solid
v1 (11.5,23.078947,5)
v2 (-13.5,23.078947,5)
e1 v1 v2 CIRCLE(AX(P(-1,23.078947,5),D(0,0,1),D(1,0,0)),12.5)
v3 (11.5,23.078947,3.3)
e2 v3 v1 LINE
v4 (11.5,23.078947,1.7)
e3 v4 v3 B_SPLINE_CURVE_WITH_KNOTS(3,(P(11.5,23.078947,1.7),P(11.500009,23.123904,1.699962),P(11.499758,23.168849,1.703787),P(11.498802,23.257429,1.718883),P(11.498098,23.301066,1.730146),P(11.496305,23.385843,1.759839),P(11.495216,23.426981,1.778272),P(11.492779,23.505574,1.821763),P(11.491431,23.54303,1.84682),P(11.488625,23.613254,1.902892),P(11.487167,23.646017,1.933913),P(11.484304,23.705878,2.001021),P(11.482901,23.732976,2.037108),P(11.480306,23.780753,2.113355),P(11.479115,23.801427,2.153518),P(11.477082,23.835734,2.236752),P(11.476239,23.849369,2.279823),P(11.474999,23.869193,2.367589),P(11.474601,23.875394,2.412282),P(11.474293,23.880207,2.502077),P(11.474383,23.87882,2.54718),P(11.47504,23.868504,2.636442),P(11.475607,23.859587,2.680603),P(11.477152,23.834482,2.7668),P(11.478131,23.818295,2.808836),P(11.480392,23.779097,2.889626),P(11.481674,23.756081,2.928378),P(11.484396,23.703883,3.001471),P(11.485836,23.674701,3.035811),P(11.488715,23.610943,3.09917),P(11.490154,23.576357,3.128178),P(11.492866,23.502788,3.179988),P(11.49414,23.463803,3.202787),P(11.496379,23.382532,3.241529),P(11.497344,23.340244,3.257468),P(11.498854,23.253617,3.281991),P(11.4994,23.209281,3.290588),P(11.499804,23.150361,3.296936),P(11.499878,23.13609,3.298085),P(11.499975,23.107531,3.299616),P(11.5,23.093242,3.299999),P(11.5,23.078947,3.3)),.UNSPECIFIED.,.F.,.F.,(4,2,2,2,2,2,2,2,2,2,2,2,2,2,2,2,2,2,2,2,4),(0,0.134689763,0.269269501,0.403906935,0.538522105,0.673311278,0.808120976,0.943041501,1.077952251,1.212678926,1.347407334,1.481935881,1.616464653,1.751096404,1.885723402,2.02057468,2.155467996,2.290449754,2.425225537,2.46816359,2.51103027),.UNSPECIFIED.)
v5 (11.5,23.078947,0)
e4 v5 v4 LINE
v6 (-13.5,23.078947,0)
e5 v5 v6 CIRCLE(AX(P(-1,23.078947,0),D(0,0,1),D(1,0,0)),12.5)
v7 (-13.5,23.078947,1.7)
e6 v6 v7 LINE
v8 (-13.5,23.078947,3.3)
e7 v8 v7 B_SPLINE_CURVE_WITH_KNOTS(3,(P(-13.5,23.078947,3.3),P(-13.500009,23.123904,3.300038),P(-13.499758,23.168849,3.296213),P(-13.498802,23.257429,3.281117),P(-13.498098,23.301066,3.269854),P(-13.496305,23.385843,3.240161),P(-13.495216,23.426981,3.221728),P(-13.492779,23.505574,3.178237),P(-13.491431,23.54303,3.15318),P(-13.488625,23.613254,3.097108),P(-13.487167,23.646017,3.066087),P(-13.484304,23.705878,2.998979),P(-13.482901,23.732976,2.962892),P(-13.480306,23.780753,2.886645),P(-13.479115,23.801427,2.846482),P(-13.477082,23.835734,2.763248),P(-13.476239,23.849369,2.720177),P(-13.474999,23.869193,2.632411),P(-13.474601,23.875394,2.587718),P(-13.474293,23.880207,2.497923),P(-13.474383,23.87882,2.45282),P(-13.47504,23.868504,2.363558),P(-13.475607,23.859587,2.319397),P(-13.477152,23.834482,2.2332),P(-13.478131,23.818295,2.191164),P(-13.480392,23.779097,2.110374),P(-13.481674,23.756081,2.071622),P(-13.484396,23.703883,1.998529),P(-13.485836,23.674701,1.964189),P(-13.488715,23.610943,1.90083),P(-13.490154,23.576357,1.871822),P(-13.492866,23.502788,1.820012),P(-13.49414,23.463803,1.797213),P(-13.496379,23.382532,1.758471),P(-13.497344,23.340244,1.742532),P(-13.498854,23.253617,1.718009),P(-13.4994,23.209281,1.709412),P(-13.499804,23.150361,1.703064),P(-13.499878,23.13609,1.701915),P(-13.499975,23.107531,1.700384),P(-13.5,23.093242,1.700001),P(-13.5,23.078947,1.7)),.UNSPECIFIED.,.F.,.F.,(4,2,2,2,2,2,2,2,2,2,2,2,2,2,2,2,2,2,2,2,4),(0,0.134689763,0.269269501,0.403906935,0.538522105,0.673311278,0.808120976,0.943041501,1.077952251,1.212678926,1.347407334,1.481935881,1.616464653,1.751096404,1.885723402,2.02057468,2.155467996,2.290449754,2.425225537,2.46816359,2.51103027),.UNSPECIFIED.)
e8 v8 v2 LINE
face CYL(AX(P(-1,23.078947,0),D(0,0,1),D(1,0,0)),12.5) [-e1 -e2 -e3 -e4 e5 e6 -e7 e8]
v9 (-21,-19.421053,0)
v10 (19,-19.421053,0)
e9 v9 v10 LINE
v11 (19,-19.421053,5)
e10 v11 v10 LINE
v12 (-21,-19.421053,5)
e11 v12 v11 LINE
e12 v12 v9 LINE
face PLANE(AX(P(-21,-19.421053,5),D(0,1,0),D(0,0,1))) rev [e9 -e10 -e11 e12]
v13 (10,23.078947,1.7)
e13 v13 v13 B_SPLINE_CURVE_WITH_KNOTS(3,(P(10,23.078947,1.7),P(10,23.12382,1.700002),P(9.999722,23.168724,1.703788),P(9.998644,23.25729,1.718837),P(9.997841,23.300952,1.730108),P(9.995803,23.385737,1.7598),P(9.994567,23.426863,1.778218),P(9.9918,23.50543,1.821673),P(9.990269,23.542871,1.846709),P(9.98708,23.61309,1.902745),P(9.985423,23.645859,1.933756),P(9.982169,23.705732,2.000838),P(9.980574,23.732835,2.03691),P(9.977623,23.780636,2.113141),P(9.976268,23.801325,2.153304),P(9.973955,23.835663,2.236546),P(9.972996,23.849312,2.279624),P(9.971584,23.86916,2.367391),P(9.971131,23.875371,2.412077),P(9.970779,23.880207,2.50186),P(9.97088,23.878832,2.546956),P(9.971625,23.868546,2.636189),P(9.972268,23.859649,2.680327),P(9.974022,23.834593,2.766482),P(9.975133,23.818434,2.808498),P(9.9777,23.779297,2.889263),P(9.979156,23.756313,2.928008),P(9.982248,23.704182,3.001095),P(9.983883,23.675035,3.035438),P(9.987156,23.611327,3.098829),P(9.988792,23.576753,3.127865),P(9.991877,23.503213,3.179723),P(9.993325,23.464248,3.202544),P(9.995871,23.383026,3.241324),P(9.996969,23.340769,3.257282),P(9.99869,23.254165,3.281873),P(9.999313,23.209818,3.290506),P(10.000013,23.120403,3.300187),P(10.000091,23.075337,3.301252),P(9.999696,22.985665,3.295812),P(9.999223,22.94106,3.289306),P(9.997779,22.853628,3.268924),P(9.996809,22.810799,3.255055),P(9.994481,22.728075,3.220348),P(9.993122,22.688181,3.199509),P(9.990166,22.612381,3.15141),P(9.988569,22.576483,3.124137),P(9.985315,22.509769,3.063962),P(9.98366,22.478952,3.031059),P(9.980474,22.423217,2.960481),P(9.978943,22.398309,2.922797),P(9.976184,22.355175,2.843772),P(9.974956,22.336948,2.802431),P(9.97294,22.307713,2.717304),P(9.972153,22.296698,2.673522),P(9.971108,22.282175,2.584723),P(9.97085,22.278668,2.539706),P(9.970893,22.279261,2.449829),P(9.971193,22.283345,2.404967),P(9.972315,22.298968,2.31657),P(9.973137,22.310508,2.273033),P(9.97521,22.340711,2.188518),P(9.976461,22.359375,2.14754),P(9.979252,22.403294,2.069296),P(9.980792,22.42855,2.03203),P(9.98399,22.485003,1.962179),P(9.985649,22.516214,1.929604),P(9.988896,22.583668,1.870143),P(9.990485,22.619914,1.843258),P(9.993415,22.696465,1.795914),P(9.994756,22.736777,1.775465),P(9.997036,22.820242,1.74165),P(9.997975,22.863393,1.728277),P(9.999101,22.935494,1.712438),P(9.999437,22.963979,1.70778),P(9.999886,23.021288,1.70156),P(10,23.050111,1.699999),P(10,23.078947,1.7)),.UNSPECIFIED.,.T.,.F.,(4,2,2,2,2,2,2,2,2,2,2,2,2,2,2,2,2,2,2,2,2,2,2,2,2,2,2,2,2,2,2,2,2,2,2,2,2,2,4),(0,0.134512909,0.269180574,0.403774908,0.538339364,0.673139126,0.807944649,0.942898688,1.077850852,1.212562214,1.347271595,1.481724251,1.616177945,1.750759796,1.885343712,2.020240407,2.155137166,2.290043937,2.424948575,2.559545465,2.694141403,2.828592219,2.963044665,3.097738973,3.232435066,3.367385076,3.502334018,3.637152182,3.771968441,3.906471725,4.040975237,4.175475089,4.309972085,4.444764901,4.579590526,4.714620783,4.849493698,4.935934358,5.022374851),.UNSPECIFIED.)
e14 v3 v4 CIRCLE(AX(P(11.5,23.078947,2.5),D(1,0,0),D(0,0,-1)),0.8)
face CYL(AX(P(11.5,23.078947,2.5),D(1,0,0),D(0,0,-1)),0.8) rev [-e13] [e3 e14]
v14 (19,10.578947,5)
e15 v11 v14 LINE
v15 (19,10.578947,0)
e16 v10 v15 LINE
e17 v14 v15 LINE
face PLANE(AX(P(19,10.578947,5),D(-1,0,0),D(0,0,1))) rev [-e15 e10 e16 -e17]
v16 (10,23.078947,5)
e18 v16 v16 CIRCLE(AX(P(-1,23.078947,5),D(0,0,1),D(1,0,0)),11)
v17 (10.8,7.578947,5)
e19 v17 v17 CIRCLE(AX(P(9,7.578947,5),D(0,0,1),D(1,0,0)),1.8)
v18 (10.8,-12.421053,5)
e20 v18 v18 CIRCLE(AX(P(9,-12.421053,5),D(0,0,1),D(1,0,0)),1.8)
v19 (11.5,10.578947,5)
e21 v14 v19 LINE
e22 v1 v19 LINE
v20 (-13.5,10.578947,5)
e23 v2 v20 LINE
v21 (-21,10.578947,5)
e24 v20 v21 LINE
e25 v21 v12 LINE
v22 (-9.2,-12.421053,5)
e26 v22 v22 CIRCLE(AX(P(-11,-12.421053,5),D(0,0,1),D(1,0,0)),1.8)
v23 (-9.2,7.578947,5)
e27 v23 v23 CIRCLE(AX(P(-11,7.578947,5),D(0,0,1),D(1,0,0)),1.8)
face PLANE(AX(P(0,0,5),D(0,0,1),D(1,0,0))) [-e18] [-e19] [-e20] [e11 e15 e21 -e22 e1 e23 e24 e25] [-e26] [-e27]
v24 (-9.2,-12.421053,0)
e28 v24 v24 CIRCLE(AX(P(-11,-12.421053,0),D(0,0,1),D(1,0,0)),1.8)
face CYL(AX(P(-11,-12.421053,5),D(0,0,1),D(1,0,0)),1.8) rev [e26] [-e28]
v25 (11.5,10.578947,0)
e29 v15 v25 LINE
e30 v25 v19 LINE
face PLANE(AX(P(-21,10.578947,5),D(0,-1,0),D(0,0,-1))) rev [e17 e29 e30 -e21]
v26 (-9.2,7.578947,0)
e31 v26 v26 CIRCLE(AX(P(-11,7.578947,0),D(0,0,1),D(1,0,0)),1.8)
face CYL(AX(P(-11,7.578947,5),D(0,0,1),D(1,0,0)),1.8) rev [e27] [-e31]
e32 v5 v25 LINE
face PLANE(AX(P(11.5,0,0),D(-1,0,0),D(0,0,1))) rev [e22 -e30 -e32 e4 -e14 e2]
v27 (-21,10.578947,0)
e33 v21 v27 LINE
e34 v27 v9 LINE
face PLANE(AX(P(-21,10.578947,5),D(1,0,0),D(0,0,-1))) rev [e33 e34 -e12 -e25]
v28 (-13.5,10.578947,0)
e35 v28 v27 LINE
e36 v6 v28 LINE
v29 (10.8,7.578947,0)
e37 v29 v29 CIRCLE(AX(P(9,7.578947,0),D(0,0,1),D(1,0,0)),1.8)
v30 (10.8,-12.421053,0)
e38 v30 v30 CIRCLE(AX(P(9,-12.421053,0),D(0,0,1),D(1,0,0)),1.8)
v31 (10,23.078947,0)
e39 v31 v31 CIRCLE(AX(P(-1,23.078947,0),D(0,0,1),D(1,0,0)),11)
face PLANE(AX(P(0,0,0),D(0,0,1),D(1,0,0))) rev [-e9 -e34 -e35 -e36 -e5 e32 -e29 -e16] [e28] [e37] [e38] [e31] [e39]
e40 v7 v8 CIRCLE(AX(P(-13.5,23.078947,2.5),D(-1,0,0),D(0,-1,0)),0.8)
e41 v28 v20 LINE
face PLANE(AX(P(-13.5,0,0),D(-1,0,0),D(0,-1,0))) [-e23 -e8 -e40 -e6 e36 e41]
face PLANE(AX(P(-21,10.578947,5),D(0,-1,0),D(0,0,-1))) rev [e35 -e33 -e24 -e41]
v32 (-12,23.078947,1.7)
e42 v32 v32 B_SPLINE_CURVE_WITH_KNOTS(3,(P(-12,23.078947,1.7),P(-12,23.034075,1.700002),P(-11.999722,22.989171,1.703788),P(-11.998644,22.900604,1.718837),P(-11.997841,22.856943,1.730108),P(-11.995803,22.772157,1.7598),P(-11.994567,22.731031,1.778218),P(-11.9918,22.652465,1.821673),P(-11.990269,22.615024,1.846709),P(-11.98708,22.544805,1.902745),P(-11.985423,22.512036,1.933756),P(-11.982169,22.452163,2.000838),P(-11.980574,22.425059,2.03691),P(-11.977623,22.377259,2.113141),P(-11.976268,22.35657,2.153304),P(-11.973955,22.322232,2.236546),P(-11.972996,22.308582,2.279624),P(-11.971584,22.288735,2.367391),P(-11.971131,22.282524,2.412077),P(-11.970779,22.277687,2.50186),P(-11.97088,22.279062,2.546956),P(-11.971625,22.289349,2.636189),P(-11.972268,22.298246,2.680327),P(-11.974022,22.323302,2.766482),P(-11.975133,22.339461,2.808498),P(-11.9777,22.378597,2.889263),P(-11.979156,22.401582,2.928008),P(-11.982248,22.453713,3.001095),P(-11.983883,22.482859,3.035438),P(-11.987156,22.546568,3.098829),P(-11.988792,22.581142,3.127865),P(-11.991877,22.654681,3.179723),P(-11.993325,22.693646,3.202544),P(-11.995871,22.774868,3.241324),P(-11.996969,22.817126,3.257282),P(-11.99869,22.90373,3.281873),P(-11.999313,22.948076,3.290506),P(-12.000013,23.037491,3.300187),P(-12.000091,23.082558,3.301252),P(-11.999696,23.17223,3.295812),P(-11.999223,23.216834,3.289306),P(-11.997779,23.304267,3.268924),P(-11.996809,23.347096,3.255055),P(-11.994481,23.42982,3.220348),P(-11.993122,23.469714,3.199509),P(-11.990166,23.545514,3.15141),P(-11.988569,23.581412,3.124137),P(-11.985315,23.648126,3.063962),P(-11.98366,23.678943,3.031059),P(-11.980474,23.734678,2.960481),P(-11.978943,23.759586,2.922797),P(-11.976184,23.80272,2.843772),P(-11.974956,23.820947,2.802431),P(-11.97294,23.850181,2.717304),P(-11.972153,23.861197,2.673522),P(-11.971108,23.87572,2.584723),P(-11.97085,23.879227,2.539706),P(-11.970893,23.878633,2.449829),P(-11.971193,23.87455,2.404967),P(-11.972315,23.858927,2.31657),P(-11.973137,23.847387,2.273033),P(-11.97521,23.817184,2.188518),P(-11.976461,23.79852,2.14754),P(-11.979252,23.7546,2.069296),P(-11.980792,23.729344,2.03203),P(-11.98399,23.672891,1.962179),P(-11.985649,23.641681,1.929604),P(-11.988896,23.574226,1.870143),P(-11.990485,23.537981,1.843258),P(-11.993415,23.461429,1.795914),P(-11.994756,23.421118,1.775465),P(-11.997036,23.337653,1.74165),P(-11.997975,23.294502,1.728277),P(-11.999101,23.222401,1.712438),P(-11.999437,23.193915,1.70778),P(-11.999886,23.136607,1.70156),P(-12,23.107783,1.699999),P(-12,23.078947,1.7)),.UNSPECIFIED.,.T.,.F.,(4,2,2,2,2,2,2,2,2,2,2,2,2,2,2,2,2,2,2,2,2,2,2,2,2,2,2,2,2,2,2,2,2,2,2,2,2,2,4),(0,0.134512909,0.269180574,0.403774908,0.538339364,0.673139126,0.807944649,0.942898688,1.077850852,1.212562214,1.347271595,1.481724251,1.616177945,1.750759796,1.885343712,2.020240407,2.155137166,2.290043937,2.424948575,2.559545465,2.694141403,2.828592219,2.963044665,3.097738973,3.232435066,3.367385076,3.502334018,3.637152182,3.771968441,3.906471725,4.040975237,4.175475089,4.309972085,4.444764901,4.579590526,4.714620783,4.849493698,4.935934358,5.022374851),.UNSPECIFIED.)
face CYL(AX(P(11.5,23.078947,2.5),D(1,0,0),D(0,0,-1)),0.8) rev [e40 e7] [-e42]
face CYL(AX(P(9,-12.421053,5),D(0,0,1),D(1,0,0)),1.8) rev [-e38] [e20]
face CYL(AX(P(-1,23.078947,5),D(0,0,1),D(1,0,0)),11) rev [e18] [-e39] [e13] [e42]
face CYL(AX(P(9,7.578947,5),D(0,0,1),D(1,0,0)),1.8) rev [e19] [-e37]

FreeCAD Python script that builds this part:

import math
import FreeCAD as App
import Part
import Sketcher

V = App.Vector


def add_polygon(sketch, points):
    """Adds a closed chain of lines whose ends are joined by coincident constraints."""
    first, n = sketch.GeometryCount, len(points)
    for a, b in zip(points, points[1:] + points[:1]):
        sketch.addGeometry(Part.LineSegment(App.Vector(*a, 0), App.Vector(*b, 0)), False)
    for i in range(n):
        sketch.addConstraint(Sketcher.Constraint("Coincident", first + i, 2, first + (i + 1) % n, 1))

doc = App.newDocument("Part")
params = doc.addObject("Spreadsheet::Sheet", "Params")
for row, (alias, value) in enumerate([
    ("sketch1_width", "40 mm"),
    ("sketch1_height", "30 mm"),
    ("pad1_length", "5 mm"),
    ("sketch2_radius", "12.5 mm"),
    ("sketch2_height", "12.5 mm"),
    ("pad2_length", "5 mm"),
    ("sketch3_diameter", "22 mm"),
    ("hole_diameter", "22 mm"),
    ("sketch4_diameter", "3.6 mm"),
    ("hole2_diameter", "3.6 mm"),
    ("sketch5_diameter", "1.6 mm"),
    ("hole3_diameter", "1.6 mm"),
], start=1):
    params.set(f"A{row}", alias)
    params.set(f"B{row}", "=" + value)
    params.setAlias(f"B{row}", alias)

body = doc.addObject("PartDesign::Body", "Body")

# Sketch on XY plane
sketch1 = body.newObject("Sketcher::SketchObject", "Sketch")
sketch1.AttachmentSupport = (doc.getObject("XY_Plane"), [""])
sketch1.MapMode = "FlatFace"
add_polygon(sketch1, [(-21, 10.578947), (-21, -19.421053), (19, -19.421053), (19, 10.578947)])  # lines 0-3
sketch1.addConstraint(Sketcher.Constraint("Vertical", 0))
sketch1.addConstraint(Sketcher.Constraint("Horizontal", 1))
sketch1.addConstraint(Sketcher.Constraint("Vertical", 2))
sketch1.addConstraint(Sketcher.Constraint("Horizontal", 3))
sketch1.addConstraint(Sketcher.Constraint("DistanceX", 1, 1, 1, 2, 40.0))
sketch1.addConstraint(Sketcher.Constraint("DistanceY", 0, 2, 0, 1, 30.0))
sketch1.addConstraint(Sketcher.Constraint("DistanceX", 0, 2, -1, 1, 21.0))
sketch1.addConstraint(Sketcher.Constraint("DistanceY", 0, 2, -1, 1, 19.421053))
sketch1.setExpression("Constraints[8]", "Params.sketch1_width")
sketch1.setExpression("Constraints[9]", "Params.sketch1_height")
pad1 = body.newObject("PartDesign::Pad", "Pad")
pad1.Profile = sketch1
pad1.setExpression("Length", "Params.pad1_length")

# Sketch on XY plane
sketch2 = body.newObject("Sketcher::SketchObject", "Sketch001")
sketch2.AttachmentSupport = (doc.getObject("XY_Plane"), [""])
sketch2.MapMode = "FlatFace"
sketch2.AttachmentOffset = App.Placement(V(0, 0, 5), App.Rotation())
sketch2.addGeometry(Part.LineSegment(V(-13.5, 10.578947, 0), V(11.5, 10.578947, 0)), False)
sketch2.addGeometry(Part.LineSegment(V(11.5, 10.578947, 0), V(11.5, 23.078947, 0)), False)
sketch2.addGeometry(Part.ArcOfCircle(Part.Circle(V(-1, 23.078947, 0), V(0, 0, 1), 12.5), math.radians(0), math.radians(180)), False)
sketch2.addGeometry(Part.LineSegment(V(-13.5, 23.078947, 0), V(-13.5, 10.578947, 0)), False)
sketch2.addConstraint(Sketcher.Constraint("Coincident", 0, 2, 1, 1))
sketch2.addConstraint(Sketcher.Constraint("Tangent", 1, 2, 2, 1))
sketch2.addConstraint(Sketcher.Constraint("Tangent", 2, 2, 3, 1))
sketch2.addConstraint(Sketcher.Constraint("Coincident", 3, 2, 0, 1))
sketch2.addConstraint(Sketcher.Constraint("Horizontal", 0))
sketch2.addConstraint(Sketcher.Constraint("Vertical", 1))
sketch2.addConstraint(Sketcher.Constraint("Vertical", 3))
sketch2.addConstraint(Sketcher.Constraint("Radius", 2, 12.5))
sketch2.addConstraint(Sketcher.Constraint("DistanceY", 1, 1, 1, 2, 12.5))
sketch2.addConstraint(Sketcher.Constraint("DistanceX", 2, 3, -1, 1, 1.0))
sketch2.addConstraint(Sketcher.Constraint("DistanceY", -1, 1, 2, 3, 23.078947))
sketch2.setExpression("Constraints[7]", "Params.sketch2_radius")
sketch2.setExpression("Constraints[8]", "Params.sketch2_height")
pad2 = body.newObject("PartDesign::Pad", "Pad001")
pad2.Profile = sketch2
pad2.setExpression("Length", "Params.pad2_length")
pad2.Reversed = True

# Sketch on XY plane
sketch3 = body.newObject("Sketcher::SketchObject", "Sketch002")
sketch3.AttachmentSupport = (doc.getObject("XY_Plane"), [""])
sketch3.MapMode = "FlatFace"
sketch3.AttachmentOffset = App.Placement(V(0, 0, 5), App.Rotation())
sketch3.addGeometry(Part.Circle(V(-1, 23.078947, 0), V(0, 0, 1), 11), False)
sketch3.addConstraint(Sketcher.Constraint("Diameter", 0, 22.0))
sketch3.addConstraint(Sketcher.Constraint("DistanceX", 0, 3, -1, 1, 1.0))
sketch3.addConstraint(Sketcher.Constraint("DistanceY", -1, 1, 0, 3, 23.078947))
sketch3.setExpression("Constraints[0]", "Params.sketch3_diameter")
doc.recompute()
hole = body.newObject("PartDesign::Hole", "Hole")
hole.Profile = sketch3
hole.ThreadType = "None"
hole.setExpression("Diameter", "Params.hole_diameter")
hole.DepthType = "ThroughAll"

# Sketch on XY plane
sketch4 = body.newObject("Sketcher::SketchObject", "Sketch003")
sketch4.AttachmentSupport = (doc.getObject("XY_Plane"), [""])
sketch4.MapMode = "FlatFace"
sketch4.AttachmentOffset = App.Placement(V(0, 0, 5), App.Rotation())
sketch4.addGeometry(Part.Circle(V(9, 7.578947, 0), V(0, 0, 1), 1.8), False)
sketch4.addGeometry(Part.Circle(V(-11, 7.578947, 0), V(0, 0, 1), 1.8), False)
sketch4.addGeometry(Part.Circle(V(-11, -12.421053, 0), V(0, 0, 1), 1.8), False)
sketch4.addGeometry(Part.Circle(V(9, -12.421053, 0), V(0, 0, 1), 1.8), False)
sketch4.addConstraint(Sketcher.Constraint("Equal", 0, 1))
sketch4.addConstraint(Sketcher.Constraint("Equal", 1, 2))
sketch4.addConstraint(Sketcher.Constraint("Equal", 2, 3))
sketch4.addConstraint(Sketcher.Constraint("Horizontal", 0, 3, 1, 3))
sketch4.addConstraint(Sketcher.Constraint("Horizontal", 2, 3, 3, 3))
sketch4.addConstraint(Sketcher.Constraint("Vertical", 1, 3, 2, 3))
sketch4.addConstraint(Sketcher.Constraint("Vertical", 0, 3, 3, 3))
sketch4.addConstraint(Sketcher.Constraint("Diameter", 0, 3.6))
sketch4.addConstraint(Sketcher.Constraint("DistanceX", -1, 1, 0, 3, 9.0))
sketch4.addConstraint(Sketcher.Constraint("DistanceX", 1, 3, -1, 1, 11.0))
sketch4.addConstraint(Sketcher.Constraint("DistanceY", 2, 3, 1, 3, 20.0))
sketch4.addConstraint(Sketcher.Constraint("DistanceY", -1, 1, 0, 3, 7.578947))
sketch4.setExpression("Constraints[7]", "Params.sketch4_diameter")
doc.recompute()
hole2 = body.newObject("PartDesign::Hole", "Hole001")
hole2.Profile = sketch4
hole2.ThreadType = "None"
hole2.setExpression("Diameter", "Params.hole2_diameter")
hole2.DepthType = "ThroughAll"

# Sketch on YZ plane
sketch5 = body.newObject("Sketcher::SketchObject", "Sketch004")
sketch5.AttachmentSupport = (doc.getObject("YZ_Plane"), [""])
sketch5.MapMode = "FlatFace"
sketch5.AttachmentOffset = App.Placement(V(0, 0, 11.5), App.Rotation())
sketch5.addGeometry(Part.Circle(V(23.078947, 2.5, 0), V(0, 0, 1), 0.8), False)
sketch5.addConstraint(Sketcher.Constraint("Diameter", 0, 1.6))
sketch5.addConstraint(Sketcher.Constraint("DistanceY", -1, 1, 0, 3, 2.5))
sketch5.addConstraint(Sketcher.Constraint("DistanceX", -1, 1, 0, 3, 23.078947))
sketch5.setExpression("Constraints[0]", "Params.sketch5_diameter")
doc.recompute()
hole3 = body.newObject("PartDesign::Hole", "Hole002")
hole3.Profile = sketch5
hole3.ThreadType = "None"
hole3.setExpression("Diameter", "Params.hole3_diameter")
hole3.DepthType = "ThroughAll"

doc.recompute()
